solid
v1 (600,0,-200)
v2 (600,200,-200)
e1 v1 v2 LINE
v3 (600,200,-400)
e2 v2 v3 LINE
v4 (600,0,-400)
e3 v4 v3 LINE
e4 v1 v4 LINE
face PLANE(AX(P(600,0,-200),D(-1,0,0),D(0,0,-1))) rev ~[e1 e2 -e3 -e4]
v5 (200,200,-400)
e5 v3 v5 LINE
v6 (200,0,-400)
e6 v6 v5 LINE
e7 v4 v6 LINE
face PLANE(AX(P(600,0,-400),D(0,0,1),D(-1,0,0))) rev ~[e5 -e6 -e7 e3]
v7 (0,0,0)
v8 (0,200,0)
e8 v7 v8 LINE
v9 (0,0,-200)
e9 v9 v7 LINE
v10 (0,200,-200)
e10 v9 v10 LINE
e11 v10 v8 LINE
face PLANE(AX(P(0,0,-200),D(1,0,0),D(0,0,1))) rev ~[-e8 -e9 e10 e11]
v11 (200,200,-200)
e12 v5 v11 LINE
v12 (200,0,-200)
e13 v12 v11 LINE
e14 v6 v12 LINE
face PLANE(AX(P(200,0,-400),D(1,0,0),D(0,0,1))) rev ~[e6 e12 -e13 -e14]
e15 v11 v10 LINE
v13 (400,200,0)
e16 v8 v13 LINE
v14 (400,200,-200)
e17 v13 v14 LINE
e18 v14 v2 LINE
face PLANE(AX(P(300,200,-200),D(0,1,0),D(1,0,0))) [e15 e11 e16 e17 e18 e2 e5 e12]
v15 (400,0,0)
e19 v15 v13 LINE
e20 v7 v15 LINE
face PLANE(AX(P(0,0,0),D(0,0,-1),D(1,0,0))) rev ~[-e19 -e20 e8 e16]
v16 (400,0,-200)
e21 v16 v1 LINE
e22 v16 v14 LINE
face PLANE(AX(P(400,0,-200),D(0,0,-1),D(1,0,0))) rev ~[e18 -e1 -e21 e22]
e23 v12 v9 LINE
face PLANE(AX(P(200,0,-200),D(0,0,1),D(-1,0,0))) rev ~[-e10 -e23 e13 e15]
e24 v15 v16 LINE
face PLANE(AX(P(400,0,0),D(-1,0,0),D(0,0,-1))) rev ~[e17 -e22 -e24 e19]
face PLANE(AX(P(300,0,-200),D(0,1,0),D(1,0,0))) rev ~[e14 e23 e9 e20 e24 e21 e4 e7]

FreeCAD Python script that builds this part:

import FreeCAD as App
import Part
import Sketcher
Q = App.Units.Quantity


def add_polygon(sketch, points):
    """Adds a closed chain of lines whose ends are joined by coincident constraints."""
    first, n = sketch.GeometryCount, len(points)
    for a, b in zip(points, points[1:] + points[:1]):
        sketch.addGeometry(Part.LineSegment(App.Vector(*a, 0), App.Vector(*b, 0)), False)
    for i in range(n):
        sketch.addConstraint(Sketcher.Constraint("Coincident", first + i, 2, first + (i + 1) % n, 1))

doc = App.newDocument("Part")
params = doc.addObject("Spreadsheet::Sheet", "Params")
for row, (alias, value) in enumerate([
    ("sketch1_width", "400 mm"),
    ("sketch1_width2", "200 mm"),
    ("pad1_length", "200 mm"),
], start=1):
    params.set(f"A{row}", alias)
    params.set(f"B{row}", "=" + value)
    params.setAlias(f"B{row}", alias)

body = doc.addObject("PartDesign::Body", "Body")

sketch1 = body.newObject("Sketcher::SketchObject", "Sketch")
sketch1.AttachmentSupport = (doc.getObject("XZ_Plane"), [""])
sketch1.MapMode = "FlatFace"
add_polygon(sketch1, [(0, 0), (400, 0), (400, -200), (600, -200), (600, -400), (200, -400), (200, -200), (0, -200)])
sketch1.addConstraint(Sketcher.Constraint("Horizontal", 0))
sketch1.addConstraint(Sketcher.Constraint("Vertical", 1))
sketch1.addConstraint(Sketcher.Constraint("Horizontal", 2))
sketch1.addConstraint(Sketcher.Constraint("Vertical", 3))
sketch1.addConstraint(Sketcher.Constraint("Horizontal", 4))
sketch1.addConstraint(Sketcher.Constraint("Vertical", 5))
sketch1.addConstraint(Sketcher.Constraint("Horizontal", 6))
sketch1.addConstraint(Sketcher.Constraint("Vertical", 7))
sketch1.addConstraint(Sketcher.Constraint("Coincident", 7, 2, -1, 1))
sketch1.addConstraint(Sketcher.Constraint("Horizontal", 2, 2, 5, 2))
sketch1.addConstraint(Sketcher.Constraint("Equal", 0, 4))
sketch1.addConstraint(Sketcher.Constraint("Equal", 6, 1))
sketch1.addConstraint(Sketcher.Constraint("Equal", 1, 3))
sketch1.addConstraint(Sketcher.Constraint("DistanceX", 0, 1, 0, 2, Q("400 mm")))
sketch1.addConstraint(Sketcher.Constraint("DistanceX", 2, 1, 2, 2, Q("200 mm")))
sketch1.setExpression("Constraints[21]", "Params.sketch1_width")
sketch1.setExpression("Constraints[22]", "Params.sketch1_width2")
pad1 = body.newObject("PartDesign::Pad", "Pad")
pad1.Profile = sketch1
pad1.setExpression("Length", "Params.pad1_length")
pad1.Reversed = True

doc.recompute()
